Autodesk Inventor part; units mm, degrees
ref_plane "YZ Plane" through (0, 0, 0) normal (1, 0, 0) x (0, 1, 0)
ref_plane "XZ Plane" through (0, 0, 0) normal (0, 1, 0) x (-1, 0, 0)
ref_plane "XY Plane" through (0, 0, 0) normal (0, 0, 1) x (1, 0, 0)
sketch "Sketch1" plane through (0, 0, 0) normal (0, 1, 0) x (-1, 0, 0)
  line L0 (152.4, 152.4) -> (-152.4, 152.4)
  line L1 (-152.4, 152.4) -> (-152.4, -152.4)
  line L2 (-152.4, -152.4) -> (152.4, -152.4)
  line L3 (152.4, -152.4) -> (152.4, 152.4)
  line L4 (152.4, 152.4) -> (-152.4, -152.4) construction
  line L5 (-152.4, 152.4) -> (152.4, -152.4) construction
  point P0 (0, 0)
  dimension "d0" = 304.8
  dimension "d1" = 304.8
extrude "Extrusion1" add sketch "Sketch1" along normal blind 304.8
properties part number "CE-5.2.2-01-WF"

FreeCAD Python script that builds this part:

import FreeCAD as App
import Part
import Sketcher

V = App.Vector
Q = App.Units.Quantity


def add_polygon(sketch, points):
    """Adds a closed chain of lines whose ends are joined by coincident constraints."""
    first, n = sketch.GeometryCount, len(points)
    for a, b in zip(points, points[1:] + points[:1]):
        sketch.addGeometry(Part.LineSegment(App.Vector(*a, 0), App.Vector(*b, 0)), False)
    for i in range(n):
        sketch.addConstraint(Sketcher.Constraint("Coincident", first + i, 2, first + (i + 1) % n, 1))

doc = App.newDocument("Part")
body = doc.addObject("PartDesign::Body", "Body")

sketch1 = doc.addObject("Sketcher::SketchObject", "Sketch")
body.addObject(sketch1)
sketch1.AttachmentSupport = (doc.XZ_Plane, [""])
sketch1.MapMode = "FlatFace"
add_polygon(sketch1, [(-152, -152), (-152, 152), (152, 152), (152, -152)])
sketch1.addConstraint([
    Sketcher.Constraint("Vertical", 0),
    Sketcher.Constraint("Horizontal", 1),
    Sketcher.Constraint("Vertical", 2),
    Sketcher.Constraint("Horizontal", 3),
    Sketcher.Constraint("Symmetric", 0, 2, 2, 2, -1, 1),
    Sketcher.Constraint("Equal", 3, 0),
    Sketcher.Constraint("DistanceX", 1, 1, 1, 2, Q("12 in")),
])
pad1 = doc.addObject("PartDesign::Pad", "Pad")
body.addObject(pad1)
pad1.Profile = sketch1
pad1.Length = Q("12 in")
pad1.Reversed = True

doc.recompute()
